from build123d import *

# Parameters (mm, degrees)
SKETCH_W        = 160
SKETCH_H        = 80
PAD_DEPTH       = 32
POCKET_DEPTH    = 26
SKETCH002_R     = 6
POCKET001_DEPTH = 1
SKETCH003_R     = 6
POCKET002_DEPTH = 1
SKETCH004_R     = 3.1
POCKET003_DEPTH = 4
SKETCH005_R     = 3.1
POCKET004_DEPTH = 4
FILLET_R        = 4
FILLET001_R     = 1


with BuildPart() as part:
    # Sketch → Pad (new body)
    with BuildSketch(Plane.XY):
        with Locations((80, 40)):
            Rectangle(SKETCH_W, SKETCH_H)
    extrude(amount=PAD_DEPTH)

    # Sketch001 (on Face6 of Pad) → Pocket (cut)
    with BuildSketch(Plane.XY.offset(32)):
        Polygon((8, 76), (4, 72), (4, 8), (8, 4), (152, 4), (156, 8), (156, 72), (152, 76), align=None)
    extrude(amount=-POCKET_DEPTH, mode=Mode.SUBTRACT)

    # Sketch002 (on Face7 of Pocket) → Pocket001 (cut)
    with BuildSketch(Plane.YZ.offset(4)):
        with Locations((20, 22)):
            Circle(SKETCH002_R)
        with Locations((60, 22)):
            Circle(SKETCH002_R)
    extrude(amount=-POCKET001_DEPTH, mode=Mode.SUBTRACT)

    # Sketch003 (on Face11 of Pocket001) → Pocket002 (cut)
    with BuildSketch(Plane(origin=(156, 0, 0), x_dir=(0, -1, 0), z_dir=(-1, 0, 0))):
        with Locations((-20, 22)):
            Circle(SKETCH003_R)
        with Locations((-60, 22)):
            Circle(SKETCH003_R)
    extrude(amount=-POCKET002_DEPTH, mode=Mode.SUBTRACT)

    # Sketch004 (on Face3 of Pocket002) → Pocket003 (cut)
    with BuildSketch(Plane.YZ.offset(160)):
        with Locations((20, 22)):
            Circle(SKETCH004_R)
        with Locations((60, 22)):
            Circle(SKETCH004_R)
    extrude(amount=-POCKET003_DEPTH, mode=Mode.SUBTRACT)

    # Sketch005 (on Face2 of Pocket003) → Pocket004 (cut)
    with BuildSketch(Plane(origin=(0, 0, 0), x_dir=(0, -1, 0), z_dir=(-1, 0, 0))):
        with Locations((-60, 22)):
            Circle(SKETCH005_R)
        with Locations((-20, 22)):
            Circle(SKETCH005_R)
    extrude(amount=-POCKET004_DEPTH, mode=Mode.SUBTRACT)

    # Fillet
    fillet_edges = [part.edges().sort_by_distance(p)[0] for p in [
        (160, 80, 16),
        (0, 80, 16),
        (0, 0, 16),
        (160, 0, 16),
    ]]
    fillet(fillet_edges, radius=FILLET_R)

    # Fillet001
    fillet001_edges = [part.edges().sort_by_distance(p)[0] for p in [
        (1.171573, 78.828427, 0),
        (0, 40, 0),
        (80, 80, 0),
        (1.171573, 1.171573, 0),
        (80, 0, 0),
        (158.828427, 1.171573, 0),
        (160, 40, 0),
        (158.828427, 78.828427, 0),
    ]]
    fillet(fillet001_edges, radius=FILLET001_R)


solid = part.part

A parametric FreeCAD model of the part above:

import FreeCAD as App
import Part
import Sketcher
Q = App.Units.Quantity


def edges_at(feature, points):
    """Names of the edges that pass closest to the given points."""
    edges = feature.Shape.Edges
    near = lambda p: min(range(len(edges)), key=lambda i: edges[i].distToShape(Part.Vertex(*p))[0])
    return sorted({f"Edge{near(p) + 1}" for p in points})


def add_polygon(sketch, points):
    """Adds a closed chain of lines whose ends are joined by coincident constraints."""
    first, n = sketch.GeometryCount, len(points)
    for a, b in zip(points, points[1:] + points[:1]):
        sketch.addGeometry(Part.LineSegment(App.Vector(*a, 0), App.Vector(*b, 0)), False)
    for i in range(n):
        sketch.addConstraint(Sketcher.Constraint("Coincident", first + i, 2, first + (i + 1) % n, 1))

doc = App.newDocument("Part")
body = doc.addObject("PartDesign::Body", "Body")

# Sketch on XY plane
sketch1 = body.newObject("Sketcher::SketchObject", "Sketch")
sketch1.AttachmentSupport = (doc.getObject("XY_Plane"), [""])
sketch1.MapMode = "FlatFace"
add_polygon(sketch1, [(0, 80), (0, 0), (160, 0), (160, 80)])  # lines 0-3
sketch1.addConstraint([
    Sketcher.Constraint("Vertical", 0),
    Sketcher.Constraint("Horizontal", 1),
    Sketcher.Constraint("Vertical", 2),
    Sketcher.Constraint("Horizontal", 3),
    Sketcher.Constraint("Coincident", 0, 2, -1, 1),
    Sketcher.Constraint("DistanceX", 1, 1, 1, 2, Q("160 mm")),
    Sketcher.Constraint("DistanceY", 0, 2, 0, 1, Q("80 mm")),
])
pad1 = body.newObject("PartDesign::Pad", "Pad")
pad1.Profile = sketch1
pad1.Length = 32

# Sketch on XY plane
sketch2 = body.newObject("Sketcher::SketchObject", "Sketch001")
sketch2.AttachmentSupport = (doc.getObject("XY_Plane"), [""])
sketch2.MapMode = "FlatFace"
sketch2.AttachmentOffset = App.Placement(App.Vector(0, 0, 32), App.Rotation())
add_polygon(sketch2, [(8, 76), (4, 72), (4, 8), (8, 4), (152, 4), (156, 8), (156, 72), (152, 76)])  # lines 0-7
sketch2.addConstraint([
    Sketcher.Constraint("Vertical", 1),
    Sketcher.Constraint("Horizontal", 3),
    Sketcher.Constraint("Vertical", 5),
    Sketcher.Constraint("Horizontal", 7),
    Sketcher.Constraint("Perpendicular", 0, 2),
    Sketcher.Constraint("Perpendicular", 2, 4),
    Sketcher.Constraint("Perpendicular", 4, 6),
    Sketcher.Constraint("Horizontal", 1, 2, 4, 2),
    Sketcher.Constraint("Horizontal", 0, 2, 5, 2),
    Sketcher.Constraint("Vertical", 3, 2, 6, 2),
    Sketcher.Constraint("Vertical", 2, 2, 7, 2),
    Sketcher.Constraint("DistanceX", 3, 1, 3, 2, Q("144 mm")),
    Sketcher.Constraint("DistanceY", 1, 2, 1, 1, Q("64 mm")),
    Sketcher.Constraint("DistanceX", -1, 1, 0, 2, Q("4 mm")),
    Sketcher.Constraint("DistanceY", -1, 1, 0, 2, Q("72 mm")),
    Sketcher.Constraint("DistanceX", -1, 1, 2, 2, Q("8 mm")),
])
pocket1 = body.newObject("PartDesign::Pocket", "Pocket")
pocket1.Profile = sketch2
pocket1.Length = 26

# Sketch on YZ plane
sketch3 = body.newObject("Sketcher::SketchObject", "Sketch002")
sketch3.AttachmentSupport = (doc.getObject("YZ_Plane"), [""])
sketch3.MapMode = "FlatFace"
sketch3.AttachmentOffset = App.Placement(App.Vector(0, 0, 4), App.Rotation())
sketch3.addGeometry([
    Part.Circle(App.Vector(20, 22, 0), App.Vector(0, 0, 1), 6),
    Part.Circle(App.Vector(60, 22, 0), App.Vector(0, 0, 1), 6),
], False)
sketch3.addConstraint([
    Sketcher.Constraint("Equal", 0, 1),
    Sketcher.Constraint("Horizontal", 0, 3, 1, 3),
    Sketcher.Constraint("Diameter", 0, Q("12 mm")),
    Sketcher.Constraint("DistanceX", -1, 1, 0, 3, Q("20 mm")),
    Sketcher.Constraint("DistanceY", -1, 1, 0, 3, Q("22 mm")),
    Sketcher.Constraint("DistanceX", -1, 1, 1, 3, Q("60 mm")),
])
pocket2 = body.newObject("PartDesign::Pocket", "Pocket001")
pocket2.Profile = sketch3
pocket2.Length = 1

# Sketch on YZ plane
sketch4 = body.newObject("Sketcher::SketchObject", "Sketch003")
sketch4.AttachmentSupport = (doc.getObject("YZ_Plane"), [""])
sketch4.MapMode = "FlatFace"
sketch4.AttachmentOffset = App.Placement(App.Vector(0, 0, 156), App.Rotation())
sketch4.addGeometry([
    Part.Circle(App.Vector(20, 22, 0), App.Vector(0, 0, 1), 6),
    Part.Circle(App.Vector(60, 22, 0), App.Vector(0, 0, 1), 6),
], False)
sketch4.addConstraint([
    Sketcher.Constraint("Equal", 0, 1),
    Sketcher.Constraint("Horizontal", 0, 3, 1, 3),
    Sketcher.Constraint("Diameter", 0, Q("12 mm")),
    Sketcher.Constraint("DistanceX", -1, 1, 0, 3, Q("20 mm")),
    Sketcher.Constraint("DistanceY", -1, 1, 0, 3, Q("22 mm")),
    Sketcher.Constraint("DistanceX", -1, 1, 1, 3, Q("60 mm")),
])
pocket3 = body.newObject("PartDesign::Pocket", "Pocket002")
pocket3.Profile = sketch4
pocket3.Length = 1
pocket3.Reversed = True

# Sketch on YZ plane
sketch5 = body.newObject("Sketcher::SketchObject", "Sketch004")
sketch5.AttachmentSupport = (doc.getObject("YZ_Plane"), [""])
sketch5.MapMode = "FlatFace"
sketch5.AttachmentOffset = App.Placement(App.Vector(0, 0, 160), App.Rotation())
sketch5.addGeometry([
    Part.Circle(App.Vector(20, 22, 0), App.Vector(0, 0, 1), 3.1),
    Part.Circle(App.Vector(60, 22, 0), App.Vector(0, 0, 1), 3.1),
], False)
sketch5.addConstraint([
    Sketcher.Constraint("Equal", 0, 1),
    Sketcher.Constraint("Horizontal", 0, 3, 1, 3),
    Sketcher.Constraint("Diameter", 0, Q("6.2 mm")),
    Sketcher.Constraint("DistanceX", -1, 1, 0, 3, Q("20 mm")),
    Sketcher.Constraint("DistanceY", -1, 1, 0, 3, Q("22 mm")),
    Sketcher.Constraint("DistanceX", -1, 1, 1, 3, Q("60 mm")),
])
pocket4 = body.newObject("PartDesign::Pocket", "Pocket003")
pocket4.Profile = sketch5
pocket4.Length = 4

# Sketch on YZ plane
sketch6 = body.newObject("Sketcher::SketchObject", "Sketch005")
sketch6.AttachmentSupport = (doc.getObject("YZ_Plane"), [""])
sketch6.MapMode = "FlatFace"
sketch6.addGeometry([
    Part.Circle(App.Vector(60, 22, 0), App.Vector(0, 0, 1), 3.1),
    Part.Circle(App.Vector(20, 22, 0), App.Vector(0, 0, 1), 3.1),
], False)
sketch6.addConstraint([
    Sketcher.Constraint("Equal", 0, 1),
    Sketcher.Constraint("Horizontal", 0, 3, 1, 3),
    Sketcher.Constraint("Diameter", 0, Q("6.2 mm")),
    Sketcher.Constraint("DistanceX", -1, 1, 0, 3, Q("60 mm")),
    Sketcher.Constraint("DistanceY", -1, 1, 0, 3, Q("22 mm")),
    Sketcher.Constraint("DistanceX", -1, 1, 1, 3, Q("20 mm")),
])
pocket5 = body.newObject("PartDesign::Pocket", "Pocket004")
pocket5.Profile = sketch6
pocket5.Length = 4
pocket5.Reversed = True
doc.recompute()

fillet = body.newObject("PartDesign::Fillet", "Fillet")
fillet.Base = (pocket5, edges_at(pocket5, [
    (160, 80, 16),
    (0, 80, 16),
    (0, 0, 16),
    (160, 0, 16),
]))
fillet.Radius = 4
doc.recompute()

fillet2 = body.newObject("PartDesign::Fillet", "Fillet001")
fillet2.Base = (fillet, edges_at(fillet, [
    (1.172, 78.828, 0),
    (0, 40, 0),
    (80, 80, 0),
    (1.172, 1.172, 0),
    (80, 0, 0),
    (158.828, 1.172, 0),
    (160, 40, 0),
    (158.828, 78.828, 0),
]))
fillet2.Radius = 1

doc.recompute()
